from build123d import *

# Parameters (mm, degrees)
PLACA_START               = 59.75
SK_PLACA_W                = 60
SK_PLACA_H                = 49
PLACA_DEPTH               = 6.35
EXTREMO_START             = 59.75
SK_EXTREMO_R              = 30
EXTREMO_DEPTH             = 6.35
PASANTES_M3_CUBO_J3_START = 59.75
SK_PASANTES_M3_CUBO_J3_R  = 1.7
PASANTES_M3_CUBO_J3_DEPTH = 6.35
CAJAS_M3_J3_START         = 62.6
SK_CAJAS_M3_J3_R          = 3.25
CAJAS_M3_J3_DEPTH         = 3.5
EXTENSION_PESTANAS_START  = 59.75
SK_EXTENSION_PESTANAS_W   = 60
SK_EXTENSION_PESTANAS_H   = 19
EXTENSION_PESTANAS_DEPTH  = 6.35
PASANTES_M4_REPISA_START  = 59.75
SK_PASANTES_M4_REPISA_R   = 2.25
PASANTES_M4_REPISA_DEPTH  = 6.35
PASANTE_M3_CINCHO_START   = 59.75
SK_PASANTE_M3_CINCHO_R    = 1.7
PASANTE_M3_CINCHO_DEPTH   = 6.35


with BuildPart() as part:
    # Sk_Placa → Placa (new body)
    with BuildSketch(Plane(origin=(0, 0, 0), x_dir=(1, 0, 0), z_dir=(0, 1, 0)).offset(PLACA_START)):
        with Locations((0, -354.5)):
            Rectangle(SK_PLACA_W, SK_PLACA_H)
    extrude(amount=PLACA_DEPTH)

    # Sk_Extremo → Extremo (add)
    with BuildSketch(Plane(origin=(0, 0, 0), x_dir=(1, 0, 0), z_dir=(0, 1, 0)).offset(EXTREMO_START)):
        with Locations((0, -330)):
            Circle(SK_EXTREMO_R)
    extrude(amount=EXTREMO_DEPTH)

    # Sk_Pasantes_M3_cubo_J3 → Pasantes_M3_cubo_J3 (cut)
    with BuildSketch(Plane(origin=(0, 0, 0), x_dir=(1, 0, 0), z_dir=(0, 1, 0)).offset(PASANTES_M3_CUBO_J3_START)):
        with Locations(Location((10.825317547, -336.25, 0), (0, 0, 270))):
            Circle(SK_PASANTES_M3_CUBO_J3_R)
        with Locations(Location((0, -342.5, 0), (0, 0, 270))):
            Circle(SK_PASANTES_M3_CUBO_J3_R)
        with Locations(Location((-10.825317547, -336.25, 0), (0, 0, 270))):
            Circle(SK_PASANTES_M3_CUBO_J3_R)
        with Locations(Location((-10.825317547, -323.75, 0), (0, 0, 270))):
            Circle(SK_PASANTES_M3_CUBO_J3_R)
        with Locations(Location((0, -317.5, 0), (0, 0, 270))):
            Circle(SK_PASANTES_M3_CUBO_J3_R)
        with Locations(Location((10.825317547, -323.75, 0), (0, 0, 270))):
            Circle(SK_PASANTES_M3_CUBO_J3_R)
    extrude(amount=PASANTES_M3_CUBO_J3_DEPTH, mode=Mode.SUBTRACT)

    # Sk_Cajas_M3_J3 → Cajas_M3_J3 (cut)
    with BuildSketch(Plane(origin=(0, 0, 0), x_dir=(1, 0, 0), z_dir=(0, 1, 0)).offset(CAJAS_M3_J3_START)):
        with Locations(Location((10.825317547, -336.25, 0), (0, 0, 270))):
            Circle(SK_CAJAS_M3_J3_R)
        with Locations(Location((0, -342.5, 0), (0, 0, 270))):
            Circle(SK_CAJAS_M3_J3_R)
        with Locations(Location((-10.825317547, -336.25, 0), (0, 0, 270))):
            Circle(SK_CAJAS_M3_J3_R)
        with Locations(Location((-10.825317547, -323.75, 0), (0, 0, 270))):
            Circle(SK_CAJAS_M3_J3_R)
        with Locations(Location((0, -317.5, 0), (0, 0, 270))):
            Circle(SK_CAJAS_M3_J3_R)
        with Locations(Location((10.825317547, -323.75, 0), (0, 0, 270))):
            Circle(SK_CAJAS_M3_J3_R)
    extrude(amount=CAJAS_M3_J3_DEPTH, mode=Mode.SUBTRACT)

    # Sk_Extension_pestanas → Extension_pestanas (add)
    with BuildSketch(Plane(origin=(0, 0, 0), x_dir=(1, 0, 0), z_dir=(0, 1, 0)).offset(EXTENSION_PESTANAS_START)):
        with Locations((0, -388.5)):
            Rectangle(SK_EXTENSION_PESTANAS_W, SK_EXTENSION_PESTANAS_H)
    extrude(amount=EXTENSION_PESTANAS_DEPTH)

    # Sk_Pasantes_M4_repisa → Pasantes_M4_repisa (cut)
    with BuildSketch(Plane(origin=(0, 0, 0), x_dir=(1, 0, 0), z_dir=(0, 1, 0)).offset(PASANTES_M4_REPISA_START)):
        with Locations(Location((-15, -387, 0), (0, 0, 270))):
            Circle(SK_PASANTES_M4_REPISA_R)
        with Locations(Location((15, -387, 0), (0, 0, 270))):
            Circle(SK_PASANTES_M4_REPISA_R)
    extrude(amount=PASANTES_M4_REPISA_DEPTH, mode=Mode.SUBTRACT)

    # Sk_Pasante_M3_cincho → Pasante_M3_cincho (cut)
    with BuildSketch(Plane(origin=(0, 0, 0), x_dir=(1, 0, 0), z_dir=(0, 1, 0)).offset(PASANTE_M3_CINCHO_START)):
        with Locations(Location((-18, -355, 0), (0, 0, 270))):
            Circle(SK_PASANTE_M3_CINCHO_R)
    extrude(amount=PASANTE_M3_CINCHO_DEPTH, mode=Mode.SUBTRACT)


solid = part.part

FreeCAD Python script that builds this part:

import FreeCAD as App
import Part
import Sketcher


def add_polygon(sketch, points):
    """Adds a closed chain of lines whose ends are joined by coincident constraints."""
    first, n = sketch.GeometryCount, len(points)
    for a, b in zip(points, points[1:] + points[:1]):
        sketch.addGeometry(Part.LineSegment(App.Vector(*a, 0), App.Vector(*b, 0)), False)
    for i in range(n):
        sketch.addConstraint(Sketcher.Constraint("Coincident", first + i, 2, first + (i + 1) % n, 1))

doc = App.newDocument("Part")
params = doc.addObject("Spreadsheet::Sheet", "Params")
for row, (alias, value) in enumerate([
    ("sketch1_width", "60 mm"),
    ("sketch1_height", "49 mm"),
    ("pad1_length", "6.35 mm"),
    ("sketch2_diameter", "60 mm"),
    ("pad2_length", "6.35 mm"),
    ("sketch3_diameter", "3.4 mm"),
    ("pocket1_length", "6.35 mm"),
    ("sketch4_diameter", "6.5 mm"),
    ("pocket2_length", "3.5 mm"),
    ("sketch5_width", "60 mm"),
    ("sketch5_height", "19 mm"),
    ("pad3_length", "6.35 mm"),
    ("sketch6_diameter", "4.5 mm"),
    ("pocket3_length", "6.35 mm"),
    ("sketch7_diameter", "3.4 mm"),
    ("pocket4_length", "6.35 mm"),
], start=1):
    params.set(f"A{row}", alias)
    params.set(f"B{row}", "=" + value)
    params.setAlias(f"B{row}", alias)

body = doc.addObject("PartDesign::Body", "Body")

sketch1 = body.newObject("Sketcher::SketchObject", "Sketch")
sketch1.AttachmentSupport = (doc.getObject("XZ_Plane"), [""])
sketch1.MapMode = "FlatFace"
sketch1.AttachmentOffset = App.Placement(App.Vector(0, 0, -59.75), App.Rotation())
add_polygon(sketch1, [(-30, 330), (-30, 379), (30, 379), (30, 330)])
sketch1.addConstraint([
    Sketcher.Constraint("Vertical", 0),
    Sketcher.Constraint("Horizontal", 1),
    Sketcher.Constraint("Vertical", 2),
    Sketcher.Constraint("Horizontal", 3),
    Sketcher.Constraint("DistanceX", 1, 1, 1, 2, 60.0),
    Sketcher.Constraint("DistanceY", 0, 1, 0, 2, 49.0),
    Sketcher.Constraint("DistanceX", 0, 2, -1, 1, 30.0),
    Sketcher.Constraint("DistanceY", -1, 1, 0, 2, 379.0),
])
sketch1.setExpression("Constraints[8]", "Params.sketch1_width")
sketch1.setExpression("Constraints[9]", "Params.sketch1_height")
pad1 = body.newObject("PartDesign::Pad", "Pad")
pad1.Profile = sketch1
pad1.setExpression("Length", "Params.pad1_length")
pad1.Reversed = True

sketch2 = body.newObject("Sketcher::SketchObject", "Sketch001")
sketch2.AttachmentSupport = (doc.getObject("XZ_Plane"), [""])
sketch2.MapMode = "FlatFace"
sketch2.AttachmentOffset = App.Placement(App.Vector(0, 0, -59.75), App.Rotation())
sketch2.addGeometry(Part.Circle(App.Vector(0, 330, 0), App.Vector(0, 0, 1), 30), False)
sketch2.addConstraint([
    Sketcher.Constraint("PointOnObject", 0, 3, -2),
    Sketcher.Constraint("Diameter", 0, 60.0),
    Sketcher.Constraint("DistanceY", -1, 1, 0, 3, 330.0),
])
sketch2.setExpression("Constraints[1]", "Params.sketch2_diameter")
pad2 = body.newObject("PartDesign::Pad", "Pad001")
pad2.Profile = sketch2
pad2.setExpression("Length", "Params.pad2_length")
pad2.Reversed = True

sketch3 = body.newObject("Sketcher::SketchObject", "Sketch002")
sketch3.AttachmentSupport = (doc.getObject("XZ_Plane"), [""])
sketch3.MapMode = "FlatFace"
sketch3.AttachmentOffset = App.Placement(App.Vector(0, 0, -59.75), App.Rotation())
sketch3.addGeometry([
    Part.Circle(App.Vector(10.8, 336.2, 0), App.Vector(0, 0, 1), 1.7),
    Part.Circle(App.Vector(0, 342.5, 0), App.Vector(0, 0, 1), 1.7),
    Part.Circle(App.Vector(-10.8, 336.2, 0), App.Vector(0, 0, 1), 1.7),
    Part.Circle(App.Vector(-10.8, 323.8, 0), App.Vector(0, 0, 1), 1.7),
    Part.Circle(App.Vector(0, 317.5, 0), App.Vector(0, 0, 1), 1.7),
    Part.Circle(App.Vector(10.8, 323.8, 0), App.Vector(0, 0, 1), 1.7),
], False)
sketch3.addConstraint([
    Sketcher.Constraint("Equal", 0, 1),
    Sketcher.Constraint("Equal", 1, 2),
    Sketcher.Constraint("Equal", 2, 3),
    Sketcher.Constraint("Equal", 3, 4),
    Sketcher.Constraint("Equal", 4, 5),
    Sketcher.Constraint("Symmetric", 0, 3, 2, 3, -2),
    Sketcher.Constraint("Symmetric", 3, 3, 5, 3, -2),
    Sketcher.Constraint("PointOnObject", 1, 3, -2),
    Sketcher.Constraint("PointOnObject", 4, 3, -2),
    Sketcher.Constraint("Vertical", 2, 3, 3, 3),
    Sketcher.Constraint("Diameter", 0, 3.4),
    Sketcher.Constraint("DistanceY", 4, 3, 1, 3, 25.0),
    Sketcher.Constraint("DistanceY", -1, 1, 1, 3, 342.5),
    Sketcher.Constraint("DistanceY", 3, 3, 2, 3, 12.5),
    Sketcher.Constraint("DistanceY", -1, 1, 0, 3, 336.25),
    Sketcher.Constraint("DistanceX", -1, 1, 0, 3, 10.825318),
])
sketch3.setExpression("Constraints[10]", "Params.sketch3_diameter")
pocket1 = body.newObject("PartDesign::Pocket", "Pocket")
pocket1.Profile = sketch3
pocket1.setExpression("Length", "Params.pocket1_length")

sketch4 = body.newObject("Sketcher::SketchObject", "Sketch003")
sketch4.AttachmentSupport = (doc.getObject("XZ_Plane"), [""])
sketch4.MapMode = "FlatFace"
sketch4.AttachmentOffset = App.Placement(App.Vector(0, 0, -62.6), App.Rotation())
sketch4.addGeometry([
    Part.Circle(App.Vector(10.8, 336.2, 0), App.Vector(0, 0, 1), 3.2),
    Part.Circle(App.Vector(0, 342.5, 0), App.Vector(0, 0, 1), 3.2),
    Part.Circle(App.Vector(-10.8, 336.2, 0), App.Vector(0, 0, 1), 3.2),
    Part.Circle(App.Vector(-10.8, 323.8, 0), App.Vector(0, 0, 1), 3.2),
    Part.Circle(App.Vector(0, 317.5, 0), App.Vector(0, 0, 1), 3.2),
    Part.Circle(App.Vector(10.8, 323.8, 0), App.Vector(0, 0, 1), 3.2),
], False)
sketch4.addConstraint([
    Sketcher.Constraint("Equal", 0, 1),
    Sketcher.Constraint("Equal", 1, 2),
    Sketcher.Constraint("Equal", 2, 3),
    Sketcher.Constraint("Equal", 3, 4),
    Sketcher.Constraint("Equal", 4, 5),
    Sketcher.Constraint("Symmetric", 0, 3, 2, 3, -2),
    Sketcher.Constraint("Symmetric", 3, 3, 5, 3, -2),
    Sketcher.Constraint("PointOnObject", 1, 3, -2),
    Sketcher.Constraint("PointOnObject", 4, 3, -2),
    Sketcher.Constraint("Vertical", 2, 3, 3, 3),
    Sketcher.Constraint("Diameter", 0, 6.5),
    Sketcher.Constraint("DistanceY", 4, 3, 1, 3, 25.0),
    Sketcher.Constraint("DistanceY", -1, 1, 1, 3, 342.5),
    Sketcher.Constraint("DistanceY", 3, 3, 2, 3, 12.5),
    Sketcher.Constraint("DistanceY", -1, 1, 0, 3, 336.25),
    Sketcher.Constraint("DistanceX", -1, 1, 0, 3, 10.825318),
])
sketch4.setExpression("Constraints[10]", "Params.sketch4_diameter")
pocket2 = body.newObject("PartDesign::Pocket", "Pocket001")
pocket2.Profile = sketch4
pocket2.setExpression("Length", "Params.pocket2_length")

sketch5 = body.newObject("Sketcher::SketchObject", "Sketch004")
sketch5.AttachmentSupport = (doc.getObject("XZ_Plane"), [""])
sketch5.MapMode = "FlatFace"
sketch5.AttachmentOffset = App.Placement(App.Vector(0, 0, -59.75), App.Rotation())
add_polygon(sketch5, [(-30, 379), (-30, 398), (30, 398), (30, 379)])
sketch5.addConstraint([
    Sketcher.Constraint("Vertical", 0),
    Sketcher.Constraint("Horizontal", 1),
    Sketcher.Constraint("Vertical", 2),
    Sketcher.Constraint("Horizontal", 3),
    Sketcher.Constraint("DistanceX", 1, 1, 1, 2, 60.0),
    Sketcher.Constraint("DistanceY", 0, 1, 0, 2, 19.0),
    Sketcher.Constraint("DistanceX", 0, 2, -1, 1, 30.0),
    Sketcher.Constraint("DistanceY", -1, 1, 0, 2, 398.0),
])
sketch5.setExpression("Constraints[8]", "Params.sketch5_width")
sketch5.setExpression("Constraints[9]", "Params.sketch5_height")
pad3 = body.newObject("PartDesign::Pad", "Pad002")
pad3.Profile = sketch5
pad3.setExpression("Length", "Params.pad3_length")
pad3.Reversed = True

sketch6 = body.newObject("Sketcher::SketchObject", "Sketch005")
sketch6.AttachmentSupport = (doc.getObject("XZ_Plane"), [""])
sketch6.MapMode = "FlatFace"
sketch6.AttachmentOffset = App.Placement(App.Vector(0, 0, -59.75), App.Rotation())
sketch6.addGeometry([
    Part.Circle(App.Vector(-15, 387, 0), App.Vector(0, 0, 1), 2.2),
    Part.Circle(App.Vector(15, 387, 0), App.Vector(0, 0, 1), 2.2),
], False)
sketch6.addConstraint([
    Sketcher.Constraint("Equal", 0, 1),
    Sketcher.Constraint("Symmetric", 0, 3, 1, 3, -2),
    Sketcher.Constraint("Diameter", 0, 4.5),
    Sketcher.Constraint("DistanceX", 0, 3, -1, 1, 15.0),
    Sketcher.Constraint("DistanceY", -1, 1, 0, 3, 387.0),
])
sketch6.setExpression("Constraints[2]", "Params.sketch6_diameter")
pocket3 = body.newObject("PartDesign::Pocket", "Pocket002")
pocket3.Profile = sketch6
pocket3.setExpression("Length", "Params.pocket3_length")

sketch7 = body.newObject("Sketcher::SketchObject", "Sketch006")
sketch7.AttachmentSupport = (doc.getObject("XZ_Plane"), [""])
sketch7.MapMode = "FlatFace"
sketch7.AttachmentOffset = App.Placement(App.Vector(0, 0, -59.75), App.Rotation())
sketch7.addGeometry(Part.Circle(App.Vector(-18, 355, 0), App.Vector(0, 0, 1), 1.7), False)
sketch7.addConstraint([
    Sketcher.Constraint("Diameter", 0, 3.4),
    Sketcher.Constraint("DistanceX", 0, 3, -1, 1, 18.0),
    Sketcher.Constraint("DistanceY", -1, 1, 0, 3, 355.0),
])
sketch7.setExpression("Constraints[0]", "Params.sketch7_diameter")
pocket4 = body.newObject("PartDesign::Pocket", "Pocket003")
pocket4.Profile = sketch7
pocket4.setExpression("Length", "Params.pocket4_length")

doc.recompute()
